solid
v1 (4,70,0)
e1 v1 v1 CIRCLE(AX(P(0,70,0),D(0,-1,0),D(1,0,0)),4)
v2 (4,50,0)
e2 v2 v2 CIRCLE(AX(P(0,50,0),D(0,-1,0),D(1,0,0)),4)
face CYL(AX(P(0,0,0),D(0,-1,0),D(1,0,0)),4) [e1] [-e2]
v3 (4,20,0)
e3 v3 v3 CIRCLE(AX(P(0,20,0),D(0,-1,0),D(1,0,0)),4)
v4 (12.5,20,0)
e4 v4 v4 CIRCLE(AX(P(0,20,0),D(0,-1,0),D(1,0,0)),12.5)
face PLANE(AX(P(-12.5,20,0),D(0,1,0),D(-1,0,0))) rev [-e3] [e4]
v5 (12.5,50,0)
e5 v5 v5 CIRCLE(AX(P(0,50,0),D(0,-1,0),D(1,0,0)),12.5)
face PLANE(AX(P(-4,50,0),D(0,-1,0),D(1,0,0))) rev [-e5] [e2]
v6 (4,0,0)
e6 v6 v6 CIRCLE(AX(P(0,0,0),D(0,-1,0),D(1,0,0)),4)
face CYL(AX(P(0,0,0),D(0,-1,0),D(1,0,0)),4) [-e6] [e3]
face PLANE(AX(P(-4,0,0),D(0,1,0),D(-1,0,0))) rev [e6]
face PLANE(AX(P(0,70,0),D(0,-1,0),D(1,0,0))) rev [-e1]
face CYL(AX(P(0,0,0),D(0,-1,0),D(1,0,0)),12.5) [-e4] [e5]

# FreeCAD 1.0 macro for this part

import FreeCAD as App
import Part
import Sketcher
from FreeCAD import Vector
Q = App.Units.Quantity

doc = App.newDocument("Part")
params = doc.addObject("Spreadsheet::Sheet", "Params")
for row, (alias, value) in enumerate([
    ("sketch1_width", "4 mm"),
    ("sketch1_height", "20 mm"),
    ("sketch1_height2", "30 mm"),
    ("sketch1_width2", "8.5 mm"),
    ("revolution_angle", "360 deg"),
], start=1):
    params.set(f"A{row}", alias)
    params.set(f"B{row}", "=" + value)
    params.setAlias(f"B{row}", alias)

body = doc.addObject("PartDesign::Body", "Body")

# Sketch on XY plane
sketch1 = body.newObject("Sketcher::SketchObject", "Sketch")
sketch1.AttachmentSupport = (doc.getObject("XY_Plane"), [""])
sketch1.MapMode = "FlatFace"
sketch1.addGeometry([
    Part.LineSegment(Vector(0, 70, 0), Vector(-4, 70, 0)),  # 0
    Part.LineSegment(Vector(-4, 70, 0), Vector(-4, 50, 0)),  # 1
    Part.LineSegment(Vector(-4, 50, 0), Vector(-12.5, 50, 0)),  # 2
    Part.LineSegment(Vector(-12.5, 50, 0), Vector(-12.5, 20, 0)),  # 3
    Part.LineSegment(Vector(-12.5, 20, 0), Vector(-4, 20, 0)),  # 4
    Part.LineSegment(Vector(-4, 20, 0), Vector(-4, 0, 0)),  # 5
    Part.LineSegment(Vector(-4, 0, 0), Vector(0, 0, 0)),  # 6
    Part.LineSegment(Vector(0, 0, 0), Vector(0, 70, 0)),  # 7
], False)
sketch1.addConstraint([
    Sketcher.Constraint("Coincident", 0, 2, 1, 1),
    Sketcher.Constraint("Coincident", 1, 2, 2, 1),
    Sketcher.Constraint("Coincident", 2, 2, 3, 1),
    Sketcher.Constraint("Coincident", 3, 2, 4, 1),
    Sketcher.Constraint("Coincident", 4, 2, 5, 1),
    Sketcher.Constraint("Coincident", 5, 2, 6, 1),
    Sketcher.Constraint("Coincident", 6, 2, 7, 1),
    Sketcher.Constraint("Coincident", 7, 2, 0, 1),
    Sketcher.Constraint("Horizontal", 0),
    Sketcher.Constraint("Vertical", 1),
    Sketcher.Constraint("Horizontal", 2),
    Sketcher.Constraint("Vertical", 3),
    Sketcher.Constraint("Horizontal", 4),
    Sketcher.Constraint("Vertical", 5),
    Sketcher.Constraint("Horizontal", 6),
    Sketcher.Constraint("Vertical", 7),
    Sketcher.Constraint("Coincident", 6, 2, -1, 1),
    Sketcher.Constraint("Vertical", 1, 2, 4, 2),
    Sketcher.Constraint("Equal", 1, 5),
    Sketcher.Constraint("DistanceX", 0, 2, 0, 1, Q("4 mm")),
    Sketcher.Constraint("DistanceY", 1, 2, 1, 1, Q("20 mm")),
    Sketcher.Constraint("DistanceY", 3, 2, 3, 1, Q("30 mm")),
    Sketcher.Constraint("DistanceX", 2, 2, 2, 1, Q("8.5 mm")),
])
sketch1.setExpression("Constraints[19]", "Params.sketch1_width")
sketch1.setExpression("Constraints[20]", "Params.sketch1_height")
sketch1.setExpression("Constraints[21]", "Params.sketch1_height2")
sketch1.setExpression("Constraints[22]", "Params.sketch1_width2")
revolution = body.newObject("PartDesign::Revolution", "Revolution")
revolution.Profile = sketch1
revolution.ReferenceAxis = (sketch1, ["V_Axis"])
revolution.setExpression("Angle", "Params.revolution_angle")

doc.recompute()
